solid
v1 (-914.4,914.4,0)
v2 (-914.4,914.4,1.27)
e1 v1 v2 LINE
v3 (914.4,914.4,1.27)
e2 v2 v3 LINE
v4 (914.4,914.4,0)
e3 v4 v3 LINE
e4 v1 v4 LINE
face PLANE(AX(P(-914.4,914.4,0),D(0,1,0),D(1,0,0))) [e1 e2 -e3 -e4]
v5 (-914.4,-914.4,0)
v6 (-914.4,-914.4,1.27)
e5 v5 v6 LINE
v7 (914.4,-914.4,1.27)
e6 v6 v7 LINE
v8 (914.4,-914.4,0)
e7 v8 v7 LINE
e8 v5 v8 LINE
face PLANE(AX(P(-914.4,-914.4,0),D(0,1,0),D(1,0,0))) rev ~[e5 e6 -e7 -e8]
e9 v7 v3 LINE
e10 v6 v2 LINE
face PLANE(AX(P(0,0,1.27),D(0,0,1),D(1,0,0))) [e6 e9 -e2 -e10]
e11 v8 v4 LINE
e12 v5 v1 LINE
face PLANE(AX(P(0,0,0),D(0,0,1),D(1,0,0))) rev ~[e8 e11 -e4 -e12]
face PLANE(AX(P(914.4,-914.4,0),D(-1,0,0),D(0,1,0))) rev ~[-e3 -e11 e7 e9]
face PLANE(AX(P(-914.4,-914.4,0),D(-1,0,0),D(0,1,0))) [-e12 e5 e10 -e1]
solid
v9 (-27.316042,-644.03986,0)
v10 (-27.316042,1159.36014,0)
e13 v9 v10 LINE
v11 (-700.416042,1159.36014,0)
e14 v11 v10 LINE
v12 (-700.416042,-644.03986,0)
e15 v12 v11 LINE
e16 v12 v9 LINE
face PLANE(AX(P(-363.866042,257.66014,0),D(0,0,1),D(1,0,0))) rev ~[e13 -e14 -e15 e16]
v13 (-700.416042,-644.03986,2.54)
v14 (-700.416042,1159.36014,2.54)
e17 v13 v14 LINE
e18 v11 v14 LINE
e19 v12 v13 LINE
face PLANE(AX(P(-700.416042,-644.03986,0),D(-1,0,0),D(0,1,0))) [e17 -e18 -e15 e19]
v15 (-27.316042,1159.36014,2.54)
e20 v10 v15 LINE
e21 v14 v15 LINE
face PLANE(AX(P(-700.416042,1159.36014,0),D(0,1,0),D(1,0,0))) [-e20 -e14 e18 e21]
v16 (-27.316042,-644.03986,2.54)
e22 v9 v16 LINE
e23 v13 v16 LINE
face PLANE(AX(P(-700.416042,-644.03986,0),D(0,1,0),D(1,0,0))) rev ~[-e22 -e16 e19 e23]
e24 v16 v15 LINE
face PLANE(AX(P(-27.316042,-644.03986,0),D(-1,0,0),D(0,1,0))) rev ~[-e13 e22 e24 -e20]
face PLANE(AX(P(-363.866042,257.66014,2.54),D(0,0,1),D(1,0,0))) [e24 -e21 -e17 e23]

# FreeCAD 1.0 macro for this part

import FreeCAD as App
import Part
import Sketcher
from FreeCAD import Vector
Q = App.Units.Quantity


def add_polygon(sketch, points):
    """Adds a closed chain of lines whose ends are joined by coincident constraints."""
    first, n = sketch.GeometryCount, len(points)
    for a, b in zip(points, points[1:] + points[:1]):
        sketch.addGeometry(Part.LineSegment(App.Vector(*a, 0), App.Vector(*b, 0)), False)
    for i in range(n):
        sketch.addConstraint(Sketcher.Constraint("Coincident", first + i, 2, first + (i + 1) % n, 1))

doc = App.newDocument("Part")
body = doc.addObject("PartDesign::Body", "Body")

# Sketch on XY plane
sketch1 = body.newObject("Sketcher::SketchObject", "Sketch")
sketch1.AttachmentSupport = (doc.getObject("XY_Plane"), [""])
sketch1.MapMode = "FlatFace"
add_polygon(sketch1, [(-914, 914), (-914, -914), (914, -914), (914, 914)])  # lines 0-3
sketch1.addConstraint([
    Sketcher.Constraint("Vertical", 0),
    Sketcher.Constraint("Horizontal", 1),
    Sketcher.Constraint("Vertical", 2),
    Sketcher.Constraint("Horizontal", 3),
    Sketcher.Constraint("Symmetric", 0, 2, 2, 2, -1, 1),
    Sketcher.Constraint("Equal", 3, 0),
    Sketcher.Constraint("DistanceX", 1, 1, 1, 2, Q("72 in")),
])
pad1 = body.newObject("PartDesign::Pad", "Pad")
pad1.Profile = sketch1
pad1.Length = Q("0.05 in")
body2 = doc.addObject("PartDesign::Body", "Body001")

# Sketch on XY plane
sketch2 = body2.newObject("Sketcher::SketchObject", "Sketch001")
sketch2.AttachmentSupport = (doc.getObject("XY_Plane001"), [""])
sketch2.MapMode = "FlatFace"
add_polygon(sketch2, [(-700, 1159), (-700, -644), (-27, -644), (-27, 1159)])  # lines 0-3
sketch2.addConstraint([
    Sketcher.Constraint("Vertical", 0),
    Sketcher.Constraint("Horizontal", 1),
    Sketcher.Constraint("Vertical", 2),
    Sketcher.Constraint("Horizontal", 3),
    Sketcher.Constraint("DistanceY", 0, 2, 0, 1, Q("71 in")),
    Sketcher.Constraint("DistanceX", 1, 1, 1, 2, Q("26.5 in")),
    Sketcher.Constraint("DistanceY", 0, 2, -1, 1, Q("25.3559 in")),
    Sketcher.Constraint("DistanceX", 0, 2, -1, 1, Q("700.416042 mm")),
])
pad2 = body2.newObject("PartDesign::Pad", "Pad001")
pad2.Profile = sketch2
pad2.Length = Q("0.1 in")

doc.recompute()
